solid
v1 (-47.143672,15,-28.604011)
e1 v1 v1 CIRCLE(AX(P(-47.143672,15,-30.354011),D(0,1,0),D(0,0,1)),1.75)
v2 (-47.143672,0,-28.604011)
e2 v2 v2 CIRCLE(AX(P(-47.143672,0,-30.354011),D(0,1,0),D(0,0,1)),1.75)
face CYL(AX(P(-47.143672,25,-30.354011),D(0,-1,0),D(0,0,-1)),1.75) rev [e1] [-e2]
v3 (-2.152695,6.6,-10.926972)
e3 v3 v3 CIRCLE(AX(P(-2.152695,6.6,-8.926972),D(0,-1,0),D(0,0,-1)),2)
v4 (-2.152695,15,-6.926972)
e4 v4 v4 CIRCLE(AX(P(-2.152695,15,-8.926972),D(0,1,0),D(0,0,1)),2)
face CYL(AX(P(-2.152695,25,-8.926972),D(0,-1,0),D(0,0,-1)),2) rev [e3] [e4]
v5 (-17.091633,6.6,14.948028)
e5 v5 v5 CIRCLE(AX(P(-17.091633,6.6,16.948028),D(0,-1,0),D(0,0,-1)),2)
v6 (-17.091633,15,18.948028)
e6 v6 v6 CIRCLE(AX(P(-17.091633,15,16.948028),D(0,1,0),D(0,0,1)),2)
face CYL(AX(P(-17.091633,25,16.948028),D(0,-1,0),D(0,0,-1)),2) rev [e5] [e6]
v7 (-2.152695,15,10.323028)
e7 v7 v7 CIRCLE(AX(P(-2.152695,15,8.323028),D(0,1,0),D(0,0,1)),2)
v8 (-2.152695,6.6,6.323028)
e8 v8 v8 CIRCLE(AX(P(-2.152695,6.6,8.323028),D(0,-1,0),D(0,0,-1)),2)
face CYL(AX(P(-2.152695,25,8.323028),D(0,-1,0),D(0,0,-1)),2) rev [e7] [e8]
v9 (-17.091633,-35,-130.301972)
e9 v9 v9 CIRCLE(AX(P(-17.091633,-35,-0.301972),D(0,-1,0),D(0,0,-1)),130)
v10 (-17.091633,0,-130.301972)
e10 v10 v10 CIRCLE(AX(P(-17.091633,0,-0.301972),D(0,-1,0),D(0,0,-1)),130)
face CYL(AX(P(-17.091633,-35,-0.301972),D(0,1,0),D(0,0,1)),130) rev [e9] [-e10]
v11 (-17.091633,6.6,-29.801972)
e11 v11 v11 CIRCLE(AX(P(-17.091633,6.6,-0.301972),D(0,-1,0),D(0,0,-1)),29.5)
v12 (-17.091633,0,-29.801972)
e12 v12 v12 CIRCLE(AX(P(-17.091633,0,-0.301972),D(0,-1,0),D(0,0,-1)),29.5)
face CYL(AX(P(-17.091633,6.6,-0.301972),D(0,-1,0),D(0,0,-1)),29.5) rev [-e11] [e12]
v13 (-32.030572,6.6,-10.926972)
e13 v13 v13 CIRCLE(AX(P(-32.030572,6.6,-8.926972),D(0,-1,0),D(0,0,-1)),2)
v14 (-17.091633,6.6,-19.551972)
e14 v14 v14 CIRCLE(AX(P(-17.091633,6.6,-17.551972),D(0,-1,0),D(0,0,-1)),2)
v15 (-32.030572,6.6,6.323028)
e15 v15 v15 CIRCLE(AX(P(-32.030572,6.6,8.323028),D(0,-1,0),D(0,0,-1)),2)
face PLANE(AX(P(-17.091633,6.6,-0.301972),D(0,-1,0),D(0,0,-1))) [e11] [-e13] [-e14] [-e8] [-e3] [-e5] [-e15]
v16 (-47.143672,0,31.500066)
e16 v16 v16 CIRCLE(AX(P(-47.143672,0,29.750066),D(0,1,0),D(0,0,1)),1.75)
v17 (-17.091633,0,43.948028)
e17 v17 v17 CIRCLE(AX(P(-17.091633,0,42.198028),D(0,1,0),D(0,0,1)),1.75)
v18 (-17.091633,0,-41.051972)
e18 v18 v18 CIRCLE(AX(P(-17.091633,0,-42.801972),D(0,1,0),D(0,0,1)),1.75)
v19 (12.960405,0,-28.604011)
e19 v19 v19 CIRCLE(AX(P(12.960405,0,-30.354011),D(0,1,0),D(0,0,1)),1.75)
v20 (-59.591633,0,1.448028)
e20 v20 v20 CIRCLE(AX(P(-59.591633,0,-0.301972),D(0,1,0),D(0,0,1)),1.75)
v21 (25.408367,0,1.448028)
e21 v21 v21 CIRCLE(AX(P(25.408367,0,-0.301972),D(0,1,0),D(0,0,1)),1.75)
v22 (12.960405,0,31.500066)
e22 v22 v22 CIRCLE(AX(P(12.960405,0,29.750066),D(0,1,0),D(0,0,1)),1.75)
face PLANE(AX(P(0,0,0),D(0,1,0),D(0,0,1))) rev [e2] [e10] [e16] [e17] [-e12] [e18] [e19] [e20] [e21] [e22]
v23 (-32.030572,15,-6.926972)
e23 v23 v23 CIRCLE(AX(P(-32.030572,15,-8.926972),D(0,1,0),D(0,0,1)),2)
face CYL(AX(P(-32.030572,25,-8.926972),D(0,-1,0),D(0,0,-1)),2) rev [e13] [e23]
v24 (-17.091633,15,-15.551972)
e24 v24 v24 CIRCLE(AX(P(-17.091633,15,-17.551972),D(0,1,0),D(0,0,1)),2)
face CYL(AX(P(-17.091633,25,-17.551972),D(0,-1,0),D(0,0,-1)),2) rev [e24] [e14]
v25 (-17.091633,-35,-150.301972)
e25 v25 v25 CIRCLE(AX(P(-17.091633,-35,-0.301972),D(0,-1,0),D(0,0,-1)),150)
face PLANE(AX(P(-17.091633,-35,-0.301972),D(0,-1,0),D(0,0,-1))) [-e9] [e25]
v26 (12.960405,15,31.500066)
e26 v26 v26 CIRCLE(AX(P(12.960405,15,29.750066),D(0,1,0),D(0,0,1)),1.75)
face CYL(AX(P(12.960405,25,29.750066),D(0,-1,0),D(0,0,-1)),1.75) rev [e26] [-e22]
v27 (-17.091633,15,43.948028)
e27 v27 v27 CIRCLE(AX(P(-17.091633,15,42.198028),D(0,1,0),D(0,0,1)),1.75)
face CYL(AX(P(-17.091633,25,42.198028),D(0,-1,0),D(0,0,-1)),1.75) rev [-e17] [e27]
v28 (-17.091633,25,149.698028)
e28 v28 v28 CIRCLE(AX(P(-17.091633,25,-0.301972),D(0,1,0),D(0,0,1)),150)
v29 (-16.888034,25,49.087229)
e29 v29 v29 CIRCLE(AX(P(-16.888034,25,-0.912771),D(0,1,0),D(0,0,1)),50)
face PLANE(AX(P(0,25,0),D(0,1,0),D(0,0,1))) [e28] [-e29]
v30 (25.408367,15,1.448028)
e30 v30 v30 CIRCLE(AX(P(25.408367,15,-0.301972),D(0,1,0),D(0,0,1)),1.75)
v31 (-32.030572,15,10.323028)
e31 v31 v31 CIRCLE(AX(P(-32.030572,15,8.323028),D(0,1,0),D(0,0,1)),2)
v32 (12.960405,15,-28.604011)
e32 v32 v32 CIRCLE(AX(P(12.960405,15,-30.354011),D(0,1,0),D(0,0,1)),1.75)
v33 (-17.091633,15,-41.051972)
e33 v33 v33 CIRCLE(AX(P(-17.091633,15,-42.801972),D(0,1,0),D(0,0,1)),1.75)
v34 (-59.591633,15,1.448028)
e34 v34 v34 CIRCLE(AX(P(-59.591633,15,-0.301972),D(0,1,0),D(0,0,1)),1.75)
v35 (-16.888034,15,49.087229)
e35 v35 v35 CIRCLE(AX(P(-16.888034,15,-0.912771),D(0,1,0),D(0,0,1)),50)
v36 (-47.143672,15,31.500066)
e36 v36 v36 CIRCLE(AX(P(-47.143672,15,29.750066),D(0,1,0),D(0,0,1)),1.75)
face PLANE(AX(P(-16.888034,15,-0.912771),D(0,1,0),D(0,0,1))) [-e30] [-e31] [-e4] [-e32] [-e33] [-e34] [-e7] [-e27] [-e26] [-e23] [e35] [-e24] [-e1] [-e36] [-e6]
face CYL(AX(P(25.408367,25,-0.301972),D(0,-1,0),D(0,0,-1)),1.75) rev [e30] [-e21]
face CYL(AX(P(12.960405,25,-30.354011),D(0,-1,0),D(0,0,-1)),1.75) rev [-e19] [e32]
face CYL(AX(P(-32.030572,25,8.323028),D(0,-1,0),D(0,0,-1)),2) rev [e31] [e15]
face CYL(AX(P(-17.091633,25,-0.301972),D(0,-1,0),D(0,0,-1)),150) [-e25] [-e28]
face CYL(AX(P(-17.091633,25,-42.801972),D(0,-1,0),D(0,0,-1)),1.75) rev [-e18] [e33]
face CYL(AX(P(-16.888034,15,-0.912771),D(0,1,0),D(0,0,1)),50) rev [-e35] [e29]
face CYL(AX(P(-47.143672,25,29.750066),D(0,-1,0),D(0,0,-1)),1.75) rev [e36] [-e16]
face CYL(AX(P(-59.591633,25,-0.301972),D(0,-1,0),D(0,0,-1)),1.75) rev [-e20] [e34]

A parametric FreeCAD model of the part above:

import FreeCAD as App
import Part
import Sketcher

V = App.Vector
Q = App.Units.Quantity

doc = App.newDocument("Part")
body = doc.addObject("PartDesign::Body", "Body")

sketch1 = body.newObject("Sketcher::SketchObject", "Sketch")
sketch1.AttachmentSupport = (doc.getObject("XZ_Plane"), [""])
sketch1.MapMode = "FlatFace"
sketch1.addGeometry(Part.Circle(V(-17.091633, -0.301972, 0), V(0, 0, 1), 150), False)
sketch1.addGeometry(Part.Circle(V(-47.143672, -30.354011, 0), V(0, 0, 1), 1.75), False)
sketch1.addGeometry(Part.Circle(V(-17.091633, -42.801972, 0), V(0, 0, 1), 1.75), False)
sketch1.addGeometry(Part.Circle(V(-32.030572, -8.926972, 0), V(0, 0, 1), 2), False)
sketch1.addGeometry(Part.Circle(V(-17.091633, -17.551972, 0), V(0, 0, 1), 2), False)
sketch1.addGeometry(Part.Circle(V(-59.591633, -0.301972, 0), V(0, 0, 1), 1.75), False)
sketch1.addGeometry(Part.Circle(V(-47.143672, 29.750066, 0), V(0, 0, 1), 1.75), False)
sketch1.addGeometry(Part.Circle(V(-32.030572, 8.323028, 0), V(0, 0, 1), 2), False)
sketch1.addGeometry(Part.Circle(V(-2.152695, -8.926972, 0), V(0, 0, 1), 2), False)
sketch1.addGeometry(Part.Circle(V(12.960405, -30.354011, 0), V(0, 0, 1), 1.75), False)
sketch1.addGeometry(Part.Circle(V(25.408367, -0.301972, 0), V(0, 0, 1), 1.75), False)
sketch1.addGeometry(Part.Circle(V(-17.091633, 16.948028, 0), V(0, 0, 1), 2), False)
sketch1.addGeometry(Part.Circle(V(-2.152695, 8.323028, 0), V(0, 0, 1), 2), False)
sketch1.addGeometry(Part.Circle(V(-17.091633, 42.198028, 0), V(0, 0, 1), 1.75), False)
sketch1.addGeometry(Part.Circle(V(12.960405, 29.750066, 0), V(0, 0, 1), 1.75), False)
sketch1.addConstraint(Sketcher.Constraint("Equal", 1, 2))
sketch1.addConstraint(Sketcher.Constraint("Equal", 3, 4))
sketch1.addConstraint(Sketcher.Constraint("Equal", 2, 5))
sketch1.addConstraint(Sketcher.Constraint("Equal", 5, 6))
sketch1.addConstraint(Sketcher.Constraint("Equal", 4, 7))
sketch1.addConstraint(Sketcher.Constraint("Equal", 7, 8))
sketch1.addConstraint(Sketcher.Constraint("Equal", 6, 9))
sketch1.addConstraint(Sketcher.Constraint("Equal", 9, 10))
sketch1.addConstraint(Sketcher.Constraint("Equal", 8, 11))
sketch1.addConstraint(Sketcher.Constraint("Equal", 11, 12))
sketch1.addConstraint(Sketcher.Constraint("Equal", 10, 13))
sketch1.addConstraint(Sketcher.Constraint("Equal", 13, 14))
sketch1.addConstraint(Sketcher.Constraint("Horizontal", 0, 3, 5, 3))
sketch1.addConstraint(Sketcher.Constraint("Horizontal", 3, 3, 8, 3))
sketch1.addConstraint(Sketcher.Constraint("Horizontal", 1, 3, 9, 3))
sketch1.addConstraint(Sketcher.Constraint("Horizontal", 5, 3, 10, 3))
sketch1.addConstraint(Sketcher.Constraint("Horizontal", 7, 3, 12, 3))
sketch1.addConstraint(Sketcher.Constraint("Horizontal", 6, 3, 14, 3))
sketch1.addConstraint(Sketcher.Constraint("Vertical", 0, 3, 2, 3))
sketch1.addConstraint(Sketcher.Constraint("Vertical", 2, 3, 4, 3))
sketch1.addConstraint(Sketcher.Constraint("Vertical", 1, 3, 6, 3))
sketch1.addConstraint(Sketcher.Constraint("Vertical", 3, 3, 7, 3))
sketch1.addConstraint(Sketcher.Constraint("Vertical", 4, 3, 11, 3))
sketch1.addConstraint(Sketcher.Constraint("Vertical", 8, 3, 12, 3))
sketch1.addConstraint(Sketcher.Constraint("Vertical", 11, 3, 13, 3))
sketch1.addConstraint(Sketcher.Constraint("Vertical", 9, 3, 14, 3))
sketch1.addConstraint(Sketcher.Constraint("Diameter", 0, Q("300 mm")))
sketch1.addConstraint(Sketcher.Constraint("Diameter", 3, Q("4 mm")))
sketch1.addConstraint(Sketcher.Constraint("Diameter", 1, Q("3.5 mm")))
sketch1.addConstraint(Sketcher.Constraint("DistanceY", 2, 3, 0, 3, Q("42.5 mm")))
sketch1.addConstraint(Sketcher.Constraint("DistanceX", 5, 3, 0, 3, Q("42.5 mm")))
sketch1.addConstraint(Sketcher.Constraint("DistanceX", 0, 3, 10, 3, Q("42.5 mm")))
sketch1.addConstraint(Sketcher.Constraint("DistanceY", 0, 3, 13, 3, Q("42.5 mm")))
sketch1.addConstraint(Sketcher.Constraint("DistanceY", 4, 3, 0, 3, Q("17.25 mm")))
sketch1.addConstraint(Sketcher.Constraint("DistanceY", 3, 3, 7, 3, Q("17.25 mm")))
sketch1.addConstraint(Sketcher.Constraint("DistanceY", 0, 3, 11, 3, Q("17.25 mm")))
sketch1.addConstraint(Sketcher.Constraint("DistanceY", 3, 3, 0, 3, Q("8.625 mm")))
sketch1.addConstraint(Sketcher.Constraint("DistanceX", 1, 3, 3, 3, Q("15.1131 mm")))
sketch1.addConstraint(Sketcher.Constraint("DistanceX", 8, 3, 9, 3, Q("15.1131 mm")))
sketch1.addConstraint(Sketcher.Constraint("DistanceX", 1, 3, -1, 1, Q("47.143672 mm")))
sketch1.addConstraint(Sketcher.Constraint("DistanceY", 1, 3, -1, 1, Q("30.354011 mm")))
sketch1.addConstraint(Sketcher.Constraint("DistanceX", 1, 3, 0, 3, Q("30.052038 mm")))
sketch1.addConstraint(Sketcher.Constraint("DistanceY", 1, 3, 0, 3, Q("30.052038 mm")))
sketch1.addConstraint(Sketcher.Constraint("DistanceY", 5, 3, 6, 3, Q("30.052038 mm")))
sketch1.addConstraint(Sketcher.Constraint("DistanceX", 0, 3, 8, 3, Q("14.938938 mm")))
pad1 = body.newObject("PartDesign::Pad", "Pad")
pad1.Profile = sketch1
pad1.Length = 25
pad1.Reversed = True

sketch2 = body.newObject("Sketcher::SketchObject", "Sketch001")
sketch2.AttachmentSupport = (doc.getObject("XZ_Plane"), [""])
sketch2.MapMode = "FlatFace"
sketch2.addGeometry(Part.Circle(V(-17.091633, -0.301972, 0), V(0, 0, 1), 29.5), False)
sketch2.addConstraint(Sketcher.Constraint("Diameter", 0, Q("59 mm")))
sketch2.addConstraint(Sketcher.Constraint("DistanceX", 0, 3, -1, 1, Q("17.091633 mm")))
sketch2.addConstraint(Sketcher.Constraint("DistanceY", 0, 3, -1, 1, Q("0.301972 mm")))
pocket1 = body.newObject("PartDesign::Pocket", "Pocket")
pocket1.Profile = sketch2
pocket1.Length = 6.6

sketch3 = body.newObject("Sketcher::SketchObject", "Sketch002")
sketch3.AttachmentSupport = (doc.getObject("XZ_Plane"), [""])
sketch3.MapMode = "FlatFace"
sketch3.AttachmentOffset = App.Placement(V(0, 0, -25), App.Rotation())
sketch3.addGeometry(Part.Circle(V(-16.888034, -0.912771, 0), V(0, 0, 1), 50), False)
sketch3.addConstraint(Sketcher.Constraint("Diameter", 0, Q("100 mm")))
sketch3.addConstraint(Sketcher.Constraint("DistanceY", 0, 3, -1, 1, Q("0.912771 mm")))
sketch3.addConstraint(Sketcher.Constraint("DistanceX", 0, 3, -1, 1, Q("16.888034 mm")))
pocket2 = body.newObject("PartDesign::Pocket", "Pocket001")
pocket2.Profile = sketch3
pocket2.Length = 10
pocket2.Reversed = True

sketch4 = body.newObject("Sketcher::SketchObject", "Sketch003")
sketch4.AttachmentSupport = (doc.getObject("XZ_Plane"), [""])
sketch4.MapMode = "FlatFace"
sketch4.AttachmentOffset = App.Placement(V(0, 0, 35), App.Rotation())
sketch4.addGeometry(Part.Circle(V(-17.091633, -0.301972, 0), V(0, 0, 1), 150), False)
sketch4.addGeometry(Part.Circle(V(-17.091633, -0.301972, 0), V(0, 0, 1), 130), False)
sketch4.addConstraint(Sketcher.Constraint("Coincident", 1, 3, 0, 3))
sketch4.addConstraint(Sketcher.Constraint("Diameter", 0, Q("300 mm")))
sketch4.addConstraint(Sketcher.Constraint("Diameter", 1, Q("260 mm")))
sketch4.addConstraint(Sketcher.Constraint("DistanceX", 0, 3, -1, 1, Q("17.091633 mm")))
sketch4.addConstraint(Sketcher.Constraint("DistanceY", 0, 3, -1, 1, Q("0.301972 mm")))
pad2 = body.newObject("PartDesign::Pad", "Pad001")
pad2.Profile = sketch4
pad2.Length = 35
pad2.Reversed = True

doc.recompute()
